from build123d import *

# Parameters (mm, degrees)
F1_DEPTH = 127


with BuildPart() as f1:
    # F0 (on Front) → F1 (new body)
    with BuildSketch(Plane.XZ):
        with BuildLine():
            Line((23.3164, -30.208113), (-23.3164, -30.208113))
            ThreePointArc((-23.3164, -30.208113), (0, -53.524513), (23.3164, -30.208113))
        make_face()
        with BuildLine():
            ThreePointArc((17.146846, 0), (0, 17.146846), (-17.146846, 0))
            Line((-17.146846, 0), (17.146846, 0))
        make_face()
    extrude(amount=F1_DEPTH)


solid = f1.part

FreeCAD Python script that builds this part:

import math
import FreeCAD as App
import Part
import Sketcher

V = App.Vector
Q = App.Units.Quantity

doc = App.newDocument("Part")
params = doc.addObject("Spreadsheet::Sheet", "Params")
for row, (alias, value) in enumerate([
    ("pad1_length", "5 in"),
], start=1):
    params.set(f"A{row}", alias)
    params.set(f"B{row}", "=" + value)
    params.setAlias(f"B{row}", alias)

body = doc.addObject("PartDesign::Body", "Body")
body.AllowCompound = True

# Sketch on XZ plane
sketch1 = body.newObject("Sketcher::SketchObject", "Sketch")
sketch1.AttachmentSupport = (doc.getObject("XZ_Plane"), [""])
sketch1.MapMode = "FlatFace"
sketch1.addGeometry([
    Part.LineSegment(V(23.3164, -30.208113, 0), V(-23.3164, -30.208113, 0)),
    Part.ArcOfCircle(Part.Circle(V(0, -30.208113, 0), V(0, 0, 1), 23.3164), math.radians(180), math.radians(360)),
    Part.ArcOfCircle(Part.Circle(V(0, 0, 0), V(0, 0, 1), 17.146846), math.radians(0), math.radians(180)),
    Part.LineSegment(V(-17.146846, 0, 0), V(17.146846, 0, 0)),
], False)
sketch1.addConstraint([
    Sketcher.Constraint("Coincident", 0, 1, 1, 2),
    Sketcher.Constraint("Coincident", 1, 1, 0, 2),
    Sketcher.Constraint("Coincident", 2, 1, 3, 2),
    Sketcher.Constraint("Coincident", 3, 1, 2, 2),
    Sketcher.Constraint("Horizontal", 0),
    Sketcher.Constraint("Horizontal", 3),
    Sketcher.Constraint("Coincident", 2, 3, -1, 1),
    Sketcher.Constraint("PointOnObject", 1, 3, -2),
    Sketcher.Constraint("PointOnObject", 2, 1, -1),
    Sketcher.Constraint("Horizontal", 1, 3, 0, 1),
    Sketcher.Constraint("Radius", 1, Q("23.3164 mm")),
    Sketcher.Constraint("Radius", 2, Q("17.146846 mm")),
    Sketcher.Constraint("DistanceY", 1, 3, -1, 1, Q("30.208113 mm")),
])
pad1 = body.newObject("PartDesign::Pad", "Pad")
pad1.Profile = sketch1
pad1.setExpression("Length", "Params.pad1_length")

doc.recompute()
